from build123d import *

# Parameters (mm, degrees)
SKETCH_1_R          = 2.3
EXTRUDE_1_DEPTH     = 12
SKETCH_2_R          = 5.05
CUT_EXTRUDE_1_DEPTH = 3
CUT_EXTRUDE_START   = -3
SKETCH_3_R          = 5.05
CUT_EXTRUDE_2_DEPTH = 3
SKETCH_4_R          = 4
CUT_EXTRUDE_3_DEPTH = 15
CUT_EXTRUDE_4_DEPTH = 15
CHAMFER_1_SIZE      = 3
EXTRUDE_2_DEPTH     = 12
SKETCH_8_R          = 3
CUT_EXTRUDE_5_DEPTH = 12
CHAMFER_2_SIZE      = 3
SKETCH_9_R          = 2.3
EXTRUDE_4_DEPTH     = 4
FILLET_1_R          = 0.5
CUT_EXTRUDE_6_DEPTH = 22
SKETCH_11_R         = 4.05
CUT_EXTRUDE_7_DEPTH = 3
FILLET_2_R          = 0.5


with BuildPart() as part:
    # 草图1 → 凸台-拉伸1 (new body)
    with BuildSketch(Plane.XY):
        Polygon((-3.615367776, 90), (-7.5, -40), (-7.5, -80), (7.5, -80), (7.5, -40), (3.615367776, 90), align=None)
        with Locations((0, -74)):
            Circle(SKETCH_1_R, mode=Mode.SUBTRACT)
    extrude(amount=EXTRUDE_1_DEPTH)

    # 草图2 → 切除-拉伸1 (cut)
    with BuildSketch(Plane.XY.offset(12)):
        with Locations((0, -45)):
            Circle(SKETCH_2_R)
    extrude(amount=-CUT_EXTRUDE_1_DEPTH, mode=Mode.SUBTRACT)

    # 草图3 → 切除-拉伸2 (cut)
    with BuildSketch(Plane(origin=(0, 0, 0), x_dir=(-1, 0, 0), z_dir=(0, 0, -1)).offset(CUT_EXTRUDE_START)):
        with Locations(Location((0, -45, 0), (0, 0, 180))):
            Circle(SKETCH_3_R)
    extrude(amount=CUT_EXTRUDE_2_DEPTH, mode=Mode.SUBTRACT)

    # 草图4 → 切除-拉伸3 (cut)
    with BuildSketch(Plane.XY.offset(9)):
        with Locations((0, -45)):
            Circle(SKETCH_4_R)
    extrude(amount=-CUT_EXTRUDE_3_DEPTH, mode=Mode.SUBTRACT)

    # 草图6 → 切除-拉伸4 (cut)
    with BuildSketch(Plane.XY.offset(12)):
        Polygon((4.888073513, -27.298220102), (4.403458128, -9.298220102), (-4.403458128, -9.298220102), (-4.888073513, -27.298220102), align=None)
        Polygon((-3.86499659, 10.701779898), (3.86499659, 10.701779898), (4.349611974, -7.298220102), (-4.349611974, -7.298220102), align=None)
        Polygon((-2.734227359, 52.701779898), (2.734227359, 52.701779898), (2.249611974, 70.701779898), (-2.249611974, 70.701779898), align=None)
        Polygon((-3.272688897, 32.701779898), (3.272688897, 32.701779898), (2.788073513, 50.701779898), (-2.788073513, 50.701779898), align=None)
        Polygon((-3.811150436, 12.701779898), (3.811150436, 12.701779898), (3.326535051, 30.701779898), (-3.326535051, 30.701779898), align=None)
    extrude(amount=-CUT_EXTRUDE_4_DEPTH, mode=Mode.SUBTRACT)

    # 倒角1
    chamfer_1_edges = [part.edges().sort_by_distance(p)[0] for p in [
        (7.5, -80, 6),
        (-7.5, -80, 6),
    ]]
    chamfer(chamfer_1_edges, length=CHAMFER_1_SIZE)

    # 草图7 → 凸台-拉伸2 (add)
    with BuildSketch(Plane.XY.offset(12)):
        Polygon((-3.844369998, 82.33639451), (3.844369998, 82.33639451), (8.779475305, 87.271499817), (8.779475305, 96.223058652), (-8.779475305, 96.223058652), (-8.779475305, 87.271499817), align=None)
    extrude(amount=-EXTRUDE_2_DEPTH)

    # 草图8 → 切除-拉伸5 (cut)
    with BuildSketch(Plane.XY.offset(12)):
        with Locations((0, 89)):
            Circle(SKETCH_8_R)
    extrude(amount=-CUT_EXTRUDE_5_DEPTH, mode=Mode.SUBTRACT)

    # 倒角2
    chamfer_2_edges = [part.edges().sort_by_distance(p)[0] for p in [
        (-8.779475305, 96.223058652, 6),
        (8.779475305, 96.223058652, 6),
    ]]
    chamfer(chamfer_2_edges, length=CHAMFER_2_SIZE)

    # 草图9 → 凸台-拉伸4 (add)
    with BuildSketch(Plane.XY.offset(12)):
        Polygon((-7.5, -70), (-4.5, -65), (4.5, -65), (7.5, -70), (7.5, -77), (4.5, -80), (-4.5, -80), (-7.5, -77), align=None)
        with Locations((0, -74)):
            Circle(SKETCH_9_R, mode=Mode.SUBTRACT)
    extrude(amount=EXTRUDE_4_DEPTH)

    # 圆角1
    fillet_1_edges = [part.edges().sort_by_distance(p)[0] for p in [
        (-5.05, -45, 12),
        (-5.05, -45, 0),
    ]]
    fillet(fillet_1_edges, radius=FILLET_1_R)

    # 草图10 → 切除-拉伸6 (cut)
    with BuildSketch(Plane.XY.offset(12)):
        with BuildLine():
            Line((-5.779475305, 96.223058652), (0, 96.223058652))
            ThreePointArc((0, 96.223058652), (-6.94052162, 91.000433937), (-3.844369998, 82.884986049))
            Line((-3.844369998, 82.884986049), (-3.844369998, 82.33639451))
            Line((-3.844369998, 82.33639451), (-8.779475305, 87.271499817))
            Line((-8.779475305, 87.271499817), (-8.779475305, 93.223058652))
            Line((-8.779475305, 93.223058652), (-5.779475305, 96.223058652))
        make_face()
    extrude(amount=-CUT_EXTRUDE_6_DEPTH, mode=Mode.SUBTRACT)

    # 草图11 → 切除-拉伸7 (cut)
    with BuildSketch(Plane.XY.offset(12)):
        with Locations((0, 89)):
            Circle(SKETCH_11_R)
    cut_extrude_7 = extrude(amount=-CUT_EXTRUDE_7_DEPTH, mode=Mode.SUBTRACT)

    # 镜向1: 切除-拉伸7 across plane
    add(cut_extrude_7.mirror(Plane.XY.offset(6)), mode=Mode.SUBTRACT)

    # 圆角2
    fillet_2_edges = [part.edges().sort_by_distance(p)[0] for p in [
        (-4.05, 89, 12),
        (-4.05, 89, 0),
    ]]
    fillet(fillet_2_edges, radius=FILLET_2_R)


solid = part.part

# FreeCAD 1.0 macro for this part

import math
import FreeCAD as App
import Part
import Sketcher
Q = App.Units.Quantity


def edges_at(feature, points):
    """Names of the edges that pass closest to the given points."""
    edges = feature.Shape.Edges
    near = lambda p: min(range(len(edges)), key=lambda i: edges[i].distToShape(Part.Vertex(*p))[0])
    return sorted({f"Edge{near(p) + 1}" for p in points})

doc = App.newDocument("Part")
params = doc.addObject("Spreadsheet::Sheet", "Params")
for row, (alias, value) in enumerate([
    ("sketch1_diameter", "4.6 mm"),
    ("sketch1_width", "15 mm"),
    ("sketch1_height", "40 mm"),
    ("pad1_length", "12 mm"),
    ("sketch2_diameter", "10.1 mm"),
    ("pocket1_length", "3 mm"),
    ("sketch3_diameter", "10.1 mm"),
    ("pocket2_length", "3 mm"),
    ("sketch4_diameter", "8 mm"),
    ("pocket3_length", "15 mm"),
    ("pocket4_length", "15 mm"),
    ("chamfer_size", "3 mm"),
    ("pad2_length", "12 mm"),
    ("sketch7_diameter", "6 mm"),
    ("pocket5_length", "12 mm"),
    ("chamfer2_size", "3 mm"),
    ("sketch8_diameter", "4.6 mm"),
    ("sketch8_width", "9 mm"),
    ("sketch8_height", "7 mm"),
    ("pad3_length", "4 mm"),
    ("fillet_radius", "0.5 mm"),
    ("pocket6_length", "22 mm"),
    ("sketch10_diameter", "8.1 mm"),
    ("pocket7_length", "3 mm"),
    ("fillet2_radius", "0.5 mm"),
], start=1):
    params.set(f"A{row}", alias)
    params.set(f"B{row}", "=" + value)
    params.setAlias(f"B{row}", alias)

body = doc.addObject("PartDesign::Body", "Body")

sketch1 = body.newObject("Sketcher::SketchObject", "Sketch")
sketch1.AttachmentSupport = (doc.getObject("XY_Plane"), [""])
sketch1.MapMode = "FlatFace"
sketch1.addGeometry([
    Part.LineSegment(App.Vector(-3.615368, 90, 0), App.Vector(-7.5, -40, 0)),
    Part.LineSegment(App.Vector(-7.5, -40, 0), App.Vector(-7.5, -80, 0)),
    Part.LineSegment(App.Vector(-7.5, -80, 0), App.Vector(7.5, -80, 0)),
    Part.LineSegment(App.Vector(7.5, -80, 0), App.Vector(7.5, -40, 0)),
    Part.LineSegment(App.Vector(7.5, -40, 0), App.Vector(3.615368, 90, 0)),
    Part.LineSegment(App.Vector(3.615368, 90, 0), App.Vector(-3.615368, 90, 0)),
    Part.Circle(App.Vector(0, -74, 0), App.Vector(0, 0, 1), 2.3),
], False)
sketch1.addConstraint([
    Sketcher.Constraint("Coincident", 0, 2, 1, 1),
    Sketcher.Constraint("Coincident", 1, 2, 2, 1),
    Sketcher.Constraint("Coincident", 2, 2, 3, 1),
    Sketcher.Constraint("Coincident", 3, 2, 4, 1),
    Sketcher.Constraint("Coincident", 4, 2, 5, 1),
    Sketcher.Constraint("Coincident", 5, 2, 0, 1),
    Sketcher.Constraint("Vertical", 1),
    Sketcher.Constraint("Horizontal", 2),
    Sketcher.Constraint("Vertical", 3),
    Sketcher.Constraint("Horizontal", 5),
    Sketcher.Constraint("Symmetric", 0, 2, 3, 2, -2),
    Sketcher.Constraint("PointOnObject", 6, 3, -2),
    Sketcher.Constraint("Equal", 0, 4),
    Sketcher.Constraint("Diameter", 6, Q("4.6 mm")),
    Sketcher.Constraint("DistanceX", 2, 1, 2, 2, Q("15 mm")),
    Sketcher.Constraint("DistanceY", 1, 2, 1, 1, Q("40 mm")),
    Sketcher.Constraint("DistanceY", 6, 3, -1, 1, Q("74 mm")),
    Sketcher.Constraint("DistanceY", 0, 2, -1, 1, Q("40 mm")),
    Sketcher.Constraint("DistanceY", -1, 1, 4, 2, Q("90 mm")),
    Sketcher.Constraint("DistanceX", 5, 2, 5, 1, Q("7.230736 mm")),
])
sketch1.setExpression("Constraints[13]", "Params.sketch1_diameter")
sketch1.setExpression("Constraints[14]", "Params.sketch1_width")
sketch1.setExpression("Constraints[15]", "Params.sketch1_height")
pad1 = body.newObject("PartDesign::Pad", "Pad")
pad1.Profile = sketch1
pad1.setExpression("Length", "Params.pad1_length")

sketch2 = body.newObject("Sketcher::SketchObject", "Sketch001")
sketch2.AttachmentSupport = (doc.getObject("XY_Plane"), [""])
sketch2.MapMode = "FlatFace"
sketch2.AttachmentOffset = App.Placement(App.Vector(0, 0, 12), App.Rotation())
sketch2.addGeometry(Part.Circle(App.Vector(0, -45, 0), App.Vector(0, 0, 1), 5.05), False)
sketch2.addConstraint([
    Sketcher.Constraint("PointOnObject", 0, 3, -2),
    Sketcher.Constraint("Diameter", 0, Q("10.1 mm")),
    Sketcher.Constraint("DistanceY", 0, 3, -1, 1, Q("45 mm")),
])
sketch2.setExpression("Constraints[1]", "Params.sketch2_diameter")
pocket1 = body.newObject("PartDesign::Pocket", "Pocket")
pocket1.Profile = sketch2
pocket1.setExpression("Length", "Params.pocket1_length")

sketch3 = body.newObject("Sketcher::SketchObject", "Sketch002")
sketch3.AttachmentSupport = (doc.getObject("XY_Plane"), [""])
sketch3.MapMode = "FlatFace"
sketch3.AttachmentOffset = App.Placement(App.Vector(0, 0, 3), App.Rotation())
sketch3.addGeometry(Part.Circle(App.Vector(0, -45, 0), App.Vector(0, 0, 1), 5.05), False)
sketch3.addConstraint([
    Sketcher.Constraint("PointOnObject", 0, 3, -2),
    Sketcher.Constraint("Diameter", 0, Q("10.1 mm")),
    Sketcher.Constraint("DistanceY", 0, 3, -1, 1, Q("45 mm")),
])
sketch3.setExpression("Constraints[1]", "Params.sketch3_diameter")
pocket2 = body.newObject("PartDesign::Pocket", "Pocket001")
pocket2.Profile = sketch3
pocket2.setExpression("Length", "Params.pocket2_length")

sketch4 = body.newObject("Sketcher::SketchObject", "Sketch003")
sketch4.AttachmentSupport = (doc.getObject("XY_Plane"), [""])
sketch4.MapMode = "FlatFace"
sketch4.AttachmentOffset = App.Placement(App.Vector(0, 0, 9), App.Rotation())
sketch4.addGeometry(Part.Circle(App.Vector(0, -45, 0), App.Vector(0, 0, 1), 4), False)
sketch4.addConstraint([
    Sketcher.Constraint("PointOnObject", 0, 3, -2),
    Sketcher.Constraint("Diameter", 0, Q("8 mm")),
    Sketcher.Constraint("DistanceY", 0, 3, -1, 1, Q("45 mm")),
])
sketch4.setExpression("Constraints[1]", "Params.sketch4_diameter")
pocket3 = body.newObject("PartDesign::Pocket", "Pocket002")
pocket3.Profile = sketch4
pocket3.setExpression("Length", "Params.pocket3_length")

sketch5 = body.newObject("Sketcher::SketchObject", "Sketch004")
sketch5.AttachmentSupport = (doc.getObject("XY_Plane"), [""])
sketch5.MapMode = "FlatFace"
sketch5.AttachmentOffset = App.Placement(App.Vector(0, 0, 12), App.Rotation())
sketch5.addGeometry([
    Part.LineSegment(App.Vector(4.888074, -27.29822, 0), App.Vector(4.403458, -9.29822, 0)),
    Part.LineSegment(App.Vector(4.403458, -9.29822, 0), App.Vector(-4.403458, -9.29822, 0)),
    Part.LineSegment(App.Vector(-4.403458, -9.29822, 0), App.Vector(-4.888074, -27.29822, 0)),
    Part.LineSegment(App.Vector(-4.888074, -27.29822, 0), App.Vector(4.888074, -27.29822, 0)),
    Part.LineSegment(App.Vector(3.864997, 10.70178, 0), App.Vector(-3.864997, 10.70178, 0)),
    Part.LineSegment(App.Vector(-3.864997, 10.70178, 0), App.Vector(-4.349612, -7.29822, 0)),
    Part.LineSegment(App.Vector(-4.349612, -7.29822, 0), App.Vector(4.349612, -7.29822, 0)),
    Part.LineSegment(App.Vector(4.349612, -7.29822, 0), App.Vector(3.864997, 10.70178, 0)),
    Part.LineSegment(App.Vector(-2.734227, 52.70178, 0), App.Vector(2.734227, 52.70178, 0)),
    Part.LineSegment(App.Vector(2.734227, 52.70178, 0), App.Vector(2.249612, 70.70178, 0)),
    Part.LineSegment(App.Vector(2.249612, 70.70178, 0), App.Vector(-2.249612, 70.70178, 0)),
    Part.LineSegment(App.Vector(-2.249612, 70.70178, 0), App.Vector(-2.734227, 52.70178, 0)),
    Part.LineSegment(App.Vector(-3.272689, 32.70178, 0), App.Vector(3.272689, 32.70178, 0)),
    Part.LineSegment(App.Vector(3.272689, 32.70178, 0), App.Vector(2.788074, 50.70178, 0)),
    Part.LineSegment(App.Vector(2.788074, 50.70178, 0), App.Vector(-2.788074, 50.70178, 0)),
    Part.LineSegment(App.Vector(-2.788074, 50.70178, 0), App.Vector(-3.272689, 32.70178, 0)),
    Part.LineSegment(App.Vector(-3.81115, 12.70178, 0), App.Vector(3.81115, 12.70178, 0)),
    Part.LineSegment(App.Vector(3.81115, 12.70178, 0), App.Vector(3.326535, 30.70178, 0)),
    Part.LineSegment(App.Vector(3.326535, 30.70178, 0), App.Vector(-3.326535, 30.70178, 0)),
    Part.LineSegment(App.Vector(-3.326535, 30.70178, 0), App.Vector(-3.81115, 12.70178, 0)),
], False)
sketch5.addConstraint([
    Sketcher.Constraint("Coincident", 0, 2, 1, 1),
    Sketcher.Constraint("Coincident", 1, 2, 2, 1),
    Sketcher.Constraint("Coincident", 2, 2, 3, 1),
    Sketcher.Constraint("Coincident", 3, 2, 0, 1),
    Sketcher.Constraint("Coincident", 4, 2, 5, 1),
    Sketcher.Constraint("Coincident", 5, 2, 6, 1),
    Sketcher.Constraint("Coincident", 6, 2, 7, 1),
    Sketcher.Constraint("Coincident", 7, 2, 4, 1),
    Sketcher.Constraint("Coincident", 8, 2, 9, 1),
    Sketcher.Constraint("Coincident", 9, 2, 10, 1),
    Sketcher.Constraint("Coincident", 10, 2, 11, 1),
    Sketcher.Constraint("Coincident", 11, 2, 8, 1),
    Sketcher.Constraint("Coincident", 12, 2, 13, 1),
    Sketcher.Constraint("Coincident", 13, 2, 14, 1),
    Sketcher.Constraint("Coincident", 14, 2, 15, 1),
    Sketcher.Constraint("Coincident", 15, 2, 12, 1),
    Sketcher.Constraint("Coincident", 16, 2, 17, 1),
    Sketcher.Constraint("Coincident", 17, 2, 18, 1),
    Sketcher.Constraint("Coincident", 18, 2, 19, 1),
    Sketcher.Constraint("Coincident", 19, 2, 16, 1),
    Sketcher.Constraint("Horizontal", 1),
    Sketcher.Constraint("Horizontal", 3),
    Sketcher.Constraint("Horizontal", 4),
    Sketcher.Constraint("Horizontal", 6),
    Sketcher.Constraint("Horizontal", 8),
    Sketcher.Constraint("Horizontal", 10),
    Sketcher.Constraint("Horizontal", 12),
    Sketcher.Constraint("Horizontal", 14),
    Sketcher.Constraint("Horizontal", 16),
    Sketcher.Constraint("Horizontal", 18),
    Sketcher.Constraint("Parallel", 2, 5),
    Sketcher.Constraint("Parallel", 0, 7),
    Sketcher.Constraint("Parallel", 7, 9),
    Sketcher.Constraint("Parallel", 5, 11),
    Sketcher.Constraint("Parallel", 9, 13),
    Sketcher.Constraint("Parallel", 11, 15),
    Sketcher.Constraint("Parallel", 13, 17),
    Sketcher.Constraint("Parallel", 15, 19),
    Sketcher.Constraint("Equal", 0, 2),
    Sketcher.Constraint("Equal", 2, 5),
    Sketcher.Constraint("Equal", 7, 9),
    Sketcher.Constraint("Equal", 11, 13),
    Sketcher.Constraint("Equal", 15, 17),
    Sketcher.Constraint("DistanceY", 2, 2, 1, 2, Q("18 mm")),
    Sketcher.Constraint("DistanceY", 1, 2, 4, 2, Q("20 mm")),
    Sketcher.Constraint("DistanceY", 7, 2, 8, 2, Q("42 mm")),
    Sketcher.Constraint("DistanceY", 12, 2, 8, 2, Q("20 mm")),
    Sketcher.Constraint("DistanceY", 7, 2, 16, 2, Q("2 mm")),
    Sketcher.Constraint("DistanceX", 9, 2, 6, 2, Q("2.1 mm")),
    Sketcher.Constraint("DistanceX", 5, 2, 10, 2, Q("2.1 mm")),
    Sketcher.Constraint("DistanceX", 16, 1, 16, 2, Q("7.622301 mm")),
    Sketcher.Constraint("DistanceX", 18, 2, 18, 1, Q("6.65307 mm")),
    Sketcher.Constraint("DistanceX", 11, 2, 13, 2, Q("5.522301 mm")),
    Sketcher.Constraint("DistanceX", 14, 2, 8, 2, Q("5.522301 mm")),
    Sketcher.Constraint("DistanceX", 1, 2, 1, 1, Q("8.806916 mm")),
    Sketcher.Constraint("DistanceX", 4, 2, 4, 1, Q("7.729993 mm")),
    Sketcher.Constraint("DistanceX", -1, 1, 0, 2, Q("4.403458 mm")),
    Sketcher.Constraint("DistanceY", 0, 2, -1, 1, Q("9.29822 mm")),
    Sketcher.Constraint("DistanceX", 5, 2, -1, 1, Q("4.349612 mm")),
    Sketcher.Constraint("DistanceX", -1, 1, 16, 2, Q("3.81115 mm")),
])
pocket4 = body.newObject("PartDesign::Pocket", "Pocket003")
pocket4.Profile = sketch5
pocket4.setExpression("Length", "Params.pocket4_length")
doc.recompute()

chamfer = body.newObject("PartDesign::Chamfer", "Chamfer")
chamfer.Base = (pocket4, edges_at(pocket4, [(7.5, -80, 6), (-7.5, -80, 6)]))
chamfer.setExpression("Size", "Params.chamfer_size")

sketch6 = body.newObject("Sketcher::SketchObject", "Sketch005")
sketch6.AttachmentSupport = (doc.getObject("XY_Plane"), [""])
sketch6.MapMode = "FlatFace"
sketch6.AttachmentOffset = App.Placement(App.Vector(0, 0, 12), App.Rotation())
sketch6.addGeometry([
    Part.LineSegment(App.Vector(-3.84437, 82.336395, 0), App.Vector(3.84437, 82.336395, 0)),
    Part.LineSegment(App.Vector(3.84437, 82.336395, 0), App.Vector(8.779475, 87.2715, 0)),
    Part.LineSegment(App.Vector(8.779475, 87.2715, 0), App.Vector(8.779475, 96.223059, 0)),
    Part.LineSegment(App.Vector(8.779475, 96.223059, 0), App.Vector(-8.779475, 96.223059, 0)),
    Part.LineSegment(App.Vector(-8.779475, 96.223059, 0), App.Vector(-8.779475, 87.2715, 0)),
    Part.LineSegment(App.Vector(-8.779475, 87.2715, 0), App.Vector(-3.84437, 82.336395, 0)),
], False)
sketch6.addConstraint([
    Sketcher.Constraint("Coincident", 0, 2, 1, 1),
    Sketcher.Constraint("Coincident", 1, 2, 2, 1),
    Sketcher.Constraint("Coincident", 2, 2, 3, 1),
    Sketcher.Constraint("Coincident", 3, 2, 4, 1),
    Sketcher.Constraint("Coincident", 4, 2, 5, 1),
    Sketcher.Constraint("Coincident", 5, 2, 0, 1),
    Sketcher.Constraint("Horizontal", 0),
    Sketcher.Constraint("Vertical", 2),
    Sketcher.Constraint("Horizontal", 3),
    Sketcher.Constraint("Vertical", 4),
    Sketcher.Constraint("Symmetric", 1, 2, 4, 2, -2),
    Sketcher.Constraint("Perpendicular", 1, 5),
    Sketcher.Constraint("Equal", 1, 5),
    Sketcher.Constraint("DistanceX", 0, 1, 0, 2, Q("7.68874 mm")),
    Sketcher.Constraint("DistanceX", 3, 2, 3, 1, Q("17.558951 mm")),
    Sketcher.Constraint("DistanceY", 2, 1, 2, 2, Q("8.951559 mm")),
    Sketcher.Constraint("DistanceY", -1, 1, 1, 2, Q("87.2715 mm")),
])
pad2 = body.newObject("PartDesign::Pad", "Pad001")
pad2.Profile = sketch6
pad2.setExpression("Length", "Params.pad2_length")
pad2.Reversed = True

sketch7 = body.newObject("Sketcher::SketchObject", "Sketch006")
sketch7.AttachmentSupport = (doc.getObject("XY_Plane"), [""])
sketch7.MapMode = "FlatFace"
sketch7.AttachmentOffset = App.Placement(App.Vector(0, 0, 12), App.Rotation())
sketch7.addGeometry(Part.Circle(App.Vector(0, 89, 0), App.Vector(0, 0, 1), 3), False)
sketch7.addConstraint([
    Sketcher.Constraint("PointOnObject", 0, 3, -2),
    Sketcher.Constraint("Diameter", 0, Q("6 mm")),
    Sketcher.Constraint("DistanceY", -1, 1, 0, 3, Q("89 mm")),
])
sketch7.setExpression("Constraints[1]", "Params.sketch7_diameter")
pocket5 = body.newObject("PartDesign::Pocket", "Pocket004")
pocket5.Profile = sketch7
pocket5.setExpression("Length", "Params.pocket5_length")
doc.recompute()

chamfer2 = body.newObject("PartDesign::Chamfer", "Chamfer001")
chamfer2.Base = (pocket5, edges_at(pocket5, [(-8.779, 96.223, 6), (8.779, 96.223, 6)]))
chamfer2.setExpression("Size", "Params.chamfer2_size")

sketch8 = body.newObject("Sketcher::SketchObject", "Sketch007")
sketch8.AttachmentSupport = (doc.getObject("XY_Plane"), [""])
sketch8.MapMode = "FlatFace"
sketch8.AttachmentOffset = App.Placement(App.Vector(0, 0, 12), App.Rotation())
sketch8.addGeometry([
    Part.LineSegment(App.Vector(-4.5, -65, 0), App.Vector(-7.5, -70, 0)),
    Part.LineSegment(App.Vector(-7.5, -70, 0), App.Vector(-7.5, -77, 0)),
    Part.LineSegment(App.Vector(-7.5, -77, 0), App.Vector(-4.5, -80, 0)),
    Part.LineSegment(App.Vector(-4.5, -80, 0), App.Vector(4.5, -80, 0)),
    Part.LineSegment(App.Vector(4.5, -80, 0), App.Vector(7.5, -77, 0)),
    Part.LineSegment(App.Vector(7.5, -77, 0), App.Vector(7.5, -70, 0)),
    Part.LineSegment(App.Vector(7.5, -70, 0), App.Vector(4.5, -65, 0)),
    Part.LineSegment(App.Vector(4.5, -65, 0), App.Vector(-4.5, -65, 0)),
    Part.Circle(App.Vector(0, -74, 0), App.Vector(0, 0, 1), 2.3),
], False)
sketch8.addConstraint([
    Sketcher.Constraint("Coincident", 0, 2, 1, 1),
    Sketcher.Constraint("Coincident", 1, 2, 2, 1),
    Sketcher.Constraint("Coincident", 2, 2, 3, 1),
    Sketcher.Constraint("Coincident", 3, 2, 4, 1),
    Sketcher.Constraint("Coincident", 4, 2, 5, 1),
    Sketcher.Constraint("Coincident", 5, 2, 6, 1),
    Sketcher.Constraint("Coincident", 6, 2, 7, 1),
    Sketcher.Constraint("Coincident", 7, 2, 0, 1),
    Sketcher.Constraint("Vertical", 1),
    Sketcher.Constraint("Horizontal", 3),
    Sketcher.Constraint("Vertical", 5),
    Sketcher.Constraint("Horizontal", 7),
    Sketcher.Constraint("Symmetric", 1, 2, 4, 2, -2),
    Sketcher.Constraint("PointOnObject", 8, 3, -2),
    Sketcher.Constraint("Perpendicular", 2, 4),
    Sketcher.Constraint("Horizontal", 0, 2, 5, 2),
    Sketcher.Constraint("Vertical", 3, 2, 6, 2),
    Sketcher.Constraint("Vertical", 2, 2, 7, 2),
    Sketcher.Constraint("Equal", 2, 4),
    Sketcher.Constraint("Diameter", 8, Q("4.6 mm")),
    Sketcher.Constraint("DistanceX", 3, 1, 3, 2, Q("9 mm")),
    Sketcher.Constraint("DistanceY", 1, 2, 1, 1, Q("7 mm")),
    Sketcher.Constraint("DistanceY", 8, 3, -1, 1, Q("74 mm")),
    Sketcher.Constraint("DistanceY", 0, 2, -1, 1, Q("70 mm")),
    Sketcher.Constraint("DistanceY", 2, 2, -1, 1, Q("80 mm")),
    Sketcher.Constraint("DistanceY", 6, 2, -1, 1, Q("65 mm")),
])
sketch8.setExpression("Constraints[19]", "Params.sketch8_diameter")
sketch8.setExpression("Constraints[20]", "Params.sketch8_width")
sketch8.setExpression("Constraints[21]", "Params.sketch8_height")
pad3 = body.newObject("PartDesign::Pad", "Pad002")
pad3.Profile = sketch8
pad3.setExpression("Length", "Params.pad3_length")
doc.recompute()

fillet = body.newObject("PartDesign::Fillet", "Fillet")
fillet.Base = (pad3, edges_at(pad3, [(-5.05, -45, 12), (-5.05, -45, 0)]))
fillet.setExpression("Radius", "Params.fillet_radius")

sketch9 = body.newObject("Sketcher::SketchObject", "Sketch008")
sketch9.AttachmentSupport = (doc.getObject("XY_Plane"), [""])
sketch9.MapMode = "FlatFace"
sketch9.AttachmentOffset = App.Placement(App.Vector(0, 0, 12), App.Rotation())
sketch9.addGeometry([
    Part.LineSegment(App.Vector(0, 96.223059, 0), App.Vector(-5.779475, 96.223059, 0)),
    Part.LineSegment(App.Vector(-5.779475, 96.223059, 0), App.Vector(-8.779475, 93.223059, 0)),
    Part.LineSegment(App.Vector(-8.779475, 93.223059, 0), App.Vector(-8.779475, 87.2715, 0)),
    Part.LineSegment(App.Vector(-8.779475, 87.2715, 0), App.Vector(-3.84437, 82.336395, 0)),
    Part.LineSegment(App.Vector(-3.84437, 82.336395, 0), App.Vector(-3.84437, 82.884986, 0)),
    Part.ArcOfCircle(Part.Circle(App.Vector(0, 89, 0), App.Vector(0, 0, 1), 7.223059), math.radians(90), math.radians(237.84336)),
], False)
sketch9.addConstraint([
    Sketcher.Constraint("Coincident", 0, 2, 1, 1),
    Sketcher.Constraint("Coincident", 1, 2, 2, 1),
    Sketcher.Constraint("Coincident", 2, 2, 3, 1),
    Sketcher.Constraint("Coincident", 3, 2, 4, 1),
    Sketcher.Constraint("Coincident", 4, 2, 5, 2),
    Sketcher.Constraint("Tangent", 5, 1, 0, 1),
    Sketcher.Constraint("Horizontal", 0),
    Sketcher.Constraint("Vertical", 2),
    Sketcher.Constraint("Vertical", 4),
    Sketcher.Constraint("PointOnObject", 5, 3, -2),
    Sketcher.Constraint("Perpendicular", 1, 3),
    Sketcher.Constraint("Angle", 1, Q("-135 deg")),
    Sketcher.Constraint("DistanceY", -1, 1, 5, 3, Q("89 mm")),
    Sketcher.Constraint("DistanceX", 1, 2, 0, 2, Q("3 mm")),
    Sketcher.Constraint("Radius", 5, Q("7.223059 mm")),
    Sketcher.Constraint("DistanceY", 2, 2, 2, 1, Q("5.951559 mm")),
    Sketcher.Constraint("DistanceY", 4, 1, 4, 2, Q("0.548592 mm")),
    Sketcher.Constraint("DistanceX", 0, 2, 0, 1, Q("5.779475 mm")),
])
pocket6 = body.newObject("PartDesign::Pocket", "Pocket005")
pocket6.Profile = sketch9
pocket6.setExpression("Length", "Params.pocket6_length")

sketch10 = body.newObject("Sketcher::SketchObject", "Sketch009")
sketch10.AttachmentSupport = (doc.getObject("XY_Plane"), [""])
sketch10.MapMode = "FlatFace"
sketch10.AttachmentOffset = App.Placement(App.Vector(0, 0, 12), App.Rotation())
sketch10.addGeometry(Part.Circle(App.Vector(0, 89, 0), App.Vector(0, 0, 1), 4.05), False)
sketch10.addConstraint([
    Sketcher.Constraint("PointOnObject", 0, 3, -2),
    Sketcher.Constraint("Diameter", 0, Q("8.1 mm")),
    Sketcher.Constraint("DistanceY", -1, 1, 0, 3, Q("89 mm")),
])
sketch10.setExpression("Constraints[1]", "Params.sketch10_diameter")
pocket7 = body.newObject("PartDesign::Pocket", "Pocket006")
pocket7.Profile = sketch10
pocket7.setExpression("Length", "Params.pocket7_length")
doc.recompute()

datumplane = body.newObject("PartDesign::Plane", "DatumPlane")
datumplane.AttachmentSupport = (doc.getObject("XY_Plane"), [""])
datumplane.MapMode = "FlatFace"
datumplane.AttachmentOffset = App.Placement(App.Vector(0, 0, 6), App.Rotation())
mirrored = body.newObject("PartDesign::Mirrored", "Mirrored")
mirrored.Originals = [pocket7]
mirrored.MirrorPlane = (datumplane, [""])
body.Tip = mirrored
doc.recompute()

fillet2 = body.newObject("PartDesign::Fillet", "Fillet001")
fillet2.Base = (mirrored, edges_at(mirrored, [(-4.05, 89, 12), (-4.05, 89, 0)]))
fillet2.setExpression("Radius", "Params.fillet2_radius")

doc.recompute()
